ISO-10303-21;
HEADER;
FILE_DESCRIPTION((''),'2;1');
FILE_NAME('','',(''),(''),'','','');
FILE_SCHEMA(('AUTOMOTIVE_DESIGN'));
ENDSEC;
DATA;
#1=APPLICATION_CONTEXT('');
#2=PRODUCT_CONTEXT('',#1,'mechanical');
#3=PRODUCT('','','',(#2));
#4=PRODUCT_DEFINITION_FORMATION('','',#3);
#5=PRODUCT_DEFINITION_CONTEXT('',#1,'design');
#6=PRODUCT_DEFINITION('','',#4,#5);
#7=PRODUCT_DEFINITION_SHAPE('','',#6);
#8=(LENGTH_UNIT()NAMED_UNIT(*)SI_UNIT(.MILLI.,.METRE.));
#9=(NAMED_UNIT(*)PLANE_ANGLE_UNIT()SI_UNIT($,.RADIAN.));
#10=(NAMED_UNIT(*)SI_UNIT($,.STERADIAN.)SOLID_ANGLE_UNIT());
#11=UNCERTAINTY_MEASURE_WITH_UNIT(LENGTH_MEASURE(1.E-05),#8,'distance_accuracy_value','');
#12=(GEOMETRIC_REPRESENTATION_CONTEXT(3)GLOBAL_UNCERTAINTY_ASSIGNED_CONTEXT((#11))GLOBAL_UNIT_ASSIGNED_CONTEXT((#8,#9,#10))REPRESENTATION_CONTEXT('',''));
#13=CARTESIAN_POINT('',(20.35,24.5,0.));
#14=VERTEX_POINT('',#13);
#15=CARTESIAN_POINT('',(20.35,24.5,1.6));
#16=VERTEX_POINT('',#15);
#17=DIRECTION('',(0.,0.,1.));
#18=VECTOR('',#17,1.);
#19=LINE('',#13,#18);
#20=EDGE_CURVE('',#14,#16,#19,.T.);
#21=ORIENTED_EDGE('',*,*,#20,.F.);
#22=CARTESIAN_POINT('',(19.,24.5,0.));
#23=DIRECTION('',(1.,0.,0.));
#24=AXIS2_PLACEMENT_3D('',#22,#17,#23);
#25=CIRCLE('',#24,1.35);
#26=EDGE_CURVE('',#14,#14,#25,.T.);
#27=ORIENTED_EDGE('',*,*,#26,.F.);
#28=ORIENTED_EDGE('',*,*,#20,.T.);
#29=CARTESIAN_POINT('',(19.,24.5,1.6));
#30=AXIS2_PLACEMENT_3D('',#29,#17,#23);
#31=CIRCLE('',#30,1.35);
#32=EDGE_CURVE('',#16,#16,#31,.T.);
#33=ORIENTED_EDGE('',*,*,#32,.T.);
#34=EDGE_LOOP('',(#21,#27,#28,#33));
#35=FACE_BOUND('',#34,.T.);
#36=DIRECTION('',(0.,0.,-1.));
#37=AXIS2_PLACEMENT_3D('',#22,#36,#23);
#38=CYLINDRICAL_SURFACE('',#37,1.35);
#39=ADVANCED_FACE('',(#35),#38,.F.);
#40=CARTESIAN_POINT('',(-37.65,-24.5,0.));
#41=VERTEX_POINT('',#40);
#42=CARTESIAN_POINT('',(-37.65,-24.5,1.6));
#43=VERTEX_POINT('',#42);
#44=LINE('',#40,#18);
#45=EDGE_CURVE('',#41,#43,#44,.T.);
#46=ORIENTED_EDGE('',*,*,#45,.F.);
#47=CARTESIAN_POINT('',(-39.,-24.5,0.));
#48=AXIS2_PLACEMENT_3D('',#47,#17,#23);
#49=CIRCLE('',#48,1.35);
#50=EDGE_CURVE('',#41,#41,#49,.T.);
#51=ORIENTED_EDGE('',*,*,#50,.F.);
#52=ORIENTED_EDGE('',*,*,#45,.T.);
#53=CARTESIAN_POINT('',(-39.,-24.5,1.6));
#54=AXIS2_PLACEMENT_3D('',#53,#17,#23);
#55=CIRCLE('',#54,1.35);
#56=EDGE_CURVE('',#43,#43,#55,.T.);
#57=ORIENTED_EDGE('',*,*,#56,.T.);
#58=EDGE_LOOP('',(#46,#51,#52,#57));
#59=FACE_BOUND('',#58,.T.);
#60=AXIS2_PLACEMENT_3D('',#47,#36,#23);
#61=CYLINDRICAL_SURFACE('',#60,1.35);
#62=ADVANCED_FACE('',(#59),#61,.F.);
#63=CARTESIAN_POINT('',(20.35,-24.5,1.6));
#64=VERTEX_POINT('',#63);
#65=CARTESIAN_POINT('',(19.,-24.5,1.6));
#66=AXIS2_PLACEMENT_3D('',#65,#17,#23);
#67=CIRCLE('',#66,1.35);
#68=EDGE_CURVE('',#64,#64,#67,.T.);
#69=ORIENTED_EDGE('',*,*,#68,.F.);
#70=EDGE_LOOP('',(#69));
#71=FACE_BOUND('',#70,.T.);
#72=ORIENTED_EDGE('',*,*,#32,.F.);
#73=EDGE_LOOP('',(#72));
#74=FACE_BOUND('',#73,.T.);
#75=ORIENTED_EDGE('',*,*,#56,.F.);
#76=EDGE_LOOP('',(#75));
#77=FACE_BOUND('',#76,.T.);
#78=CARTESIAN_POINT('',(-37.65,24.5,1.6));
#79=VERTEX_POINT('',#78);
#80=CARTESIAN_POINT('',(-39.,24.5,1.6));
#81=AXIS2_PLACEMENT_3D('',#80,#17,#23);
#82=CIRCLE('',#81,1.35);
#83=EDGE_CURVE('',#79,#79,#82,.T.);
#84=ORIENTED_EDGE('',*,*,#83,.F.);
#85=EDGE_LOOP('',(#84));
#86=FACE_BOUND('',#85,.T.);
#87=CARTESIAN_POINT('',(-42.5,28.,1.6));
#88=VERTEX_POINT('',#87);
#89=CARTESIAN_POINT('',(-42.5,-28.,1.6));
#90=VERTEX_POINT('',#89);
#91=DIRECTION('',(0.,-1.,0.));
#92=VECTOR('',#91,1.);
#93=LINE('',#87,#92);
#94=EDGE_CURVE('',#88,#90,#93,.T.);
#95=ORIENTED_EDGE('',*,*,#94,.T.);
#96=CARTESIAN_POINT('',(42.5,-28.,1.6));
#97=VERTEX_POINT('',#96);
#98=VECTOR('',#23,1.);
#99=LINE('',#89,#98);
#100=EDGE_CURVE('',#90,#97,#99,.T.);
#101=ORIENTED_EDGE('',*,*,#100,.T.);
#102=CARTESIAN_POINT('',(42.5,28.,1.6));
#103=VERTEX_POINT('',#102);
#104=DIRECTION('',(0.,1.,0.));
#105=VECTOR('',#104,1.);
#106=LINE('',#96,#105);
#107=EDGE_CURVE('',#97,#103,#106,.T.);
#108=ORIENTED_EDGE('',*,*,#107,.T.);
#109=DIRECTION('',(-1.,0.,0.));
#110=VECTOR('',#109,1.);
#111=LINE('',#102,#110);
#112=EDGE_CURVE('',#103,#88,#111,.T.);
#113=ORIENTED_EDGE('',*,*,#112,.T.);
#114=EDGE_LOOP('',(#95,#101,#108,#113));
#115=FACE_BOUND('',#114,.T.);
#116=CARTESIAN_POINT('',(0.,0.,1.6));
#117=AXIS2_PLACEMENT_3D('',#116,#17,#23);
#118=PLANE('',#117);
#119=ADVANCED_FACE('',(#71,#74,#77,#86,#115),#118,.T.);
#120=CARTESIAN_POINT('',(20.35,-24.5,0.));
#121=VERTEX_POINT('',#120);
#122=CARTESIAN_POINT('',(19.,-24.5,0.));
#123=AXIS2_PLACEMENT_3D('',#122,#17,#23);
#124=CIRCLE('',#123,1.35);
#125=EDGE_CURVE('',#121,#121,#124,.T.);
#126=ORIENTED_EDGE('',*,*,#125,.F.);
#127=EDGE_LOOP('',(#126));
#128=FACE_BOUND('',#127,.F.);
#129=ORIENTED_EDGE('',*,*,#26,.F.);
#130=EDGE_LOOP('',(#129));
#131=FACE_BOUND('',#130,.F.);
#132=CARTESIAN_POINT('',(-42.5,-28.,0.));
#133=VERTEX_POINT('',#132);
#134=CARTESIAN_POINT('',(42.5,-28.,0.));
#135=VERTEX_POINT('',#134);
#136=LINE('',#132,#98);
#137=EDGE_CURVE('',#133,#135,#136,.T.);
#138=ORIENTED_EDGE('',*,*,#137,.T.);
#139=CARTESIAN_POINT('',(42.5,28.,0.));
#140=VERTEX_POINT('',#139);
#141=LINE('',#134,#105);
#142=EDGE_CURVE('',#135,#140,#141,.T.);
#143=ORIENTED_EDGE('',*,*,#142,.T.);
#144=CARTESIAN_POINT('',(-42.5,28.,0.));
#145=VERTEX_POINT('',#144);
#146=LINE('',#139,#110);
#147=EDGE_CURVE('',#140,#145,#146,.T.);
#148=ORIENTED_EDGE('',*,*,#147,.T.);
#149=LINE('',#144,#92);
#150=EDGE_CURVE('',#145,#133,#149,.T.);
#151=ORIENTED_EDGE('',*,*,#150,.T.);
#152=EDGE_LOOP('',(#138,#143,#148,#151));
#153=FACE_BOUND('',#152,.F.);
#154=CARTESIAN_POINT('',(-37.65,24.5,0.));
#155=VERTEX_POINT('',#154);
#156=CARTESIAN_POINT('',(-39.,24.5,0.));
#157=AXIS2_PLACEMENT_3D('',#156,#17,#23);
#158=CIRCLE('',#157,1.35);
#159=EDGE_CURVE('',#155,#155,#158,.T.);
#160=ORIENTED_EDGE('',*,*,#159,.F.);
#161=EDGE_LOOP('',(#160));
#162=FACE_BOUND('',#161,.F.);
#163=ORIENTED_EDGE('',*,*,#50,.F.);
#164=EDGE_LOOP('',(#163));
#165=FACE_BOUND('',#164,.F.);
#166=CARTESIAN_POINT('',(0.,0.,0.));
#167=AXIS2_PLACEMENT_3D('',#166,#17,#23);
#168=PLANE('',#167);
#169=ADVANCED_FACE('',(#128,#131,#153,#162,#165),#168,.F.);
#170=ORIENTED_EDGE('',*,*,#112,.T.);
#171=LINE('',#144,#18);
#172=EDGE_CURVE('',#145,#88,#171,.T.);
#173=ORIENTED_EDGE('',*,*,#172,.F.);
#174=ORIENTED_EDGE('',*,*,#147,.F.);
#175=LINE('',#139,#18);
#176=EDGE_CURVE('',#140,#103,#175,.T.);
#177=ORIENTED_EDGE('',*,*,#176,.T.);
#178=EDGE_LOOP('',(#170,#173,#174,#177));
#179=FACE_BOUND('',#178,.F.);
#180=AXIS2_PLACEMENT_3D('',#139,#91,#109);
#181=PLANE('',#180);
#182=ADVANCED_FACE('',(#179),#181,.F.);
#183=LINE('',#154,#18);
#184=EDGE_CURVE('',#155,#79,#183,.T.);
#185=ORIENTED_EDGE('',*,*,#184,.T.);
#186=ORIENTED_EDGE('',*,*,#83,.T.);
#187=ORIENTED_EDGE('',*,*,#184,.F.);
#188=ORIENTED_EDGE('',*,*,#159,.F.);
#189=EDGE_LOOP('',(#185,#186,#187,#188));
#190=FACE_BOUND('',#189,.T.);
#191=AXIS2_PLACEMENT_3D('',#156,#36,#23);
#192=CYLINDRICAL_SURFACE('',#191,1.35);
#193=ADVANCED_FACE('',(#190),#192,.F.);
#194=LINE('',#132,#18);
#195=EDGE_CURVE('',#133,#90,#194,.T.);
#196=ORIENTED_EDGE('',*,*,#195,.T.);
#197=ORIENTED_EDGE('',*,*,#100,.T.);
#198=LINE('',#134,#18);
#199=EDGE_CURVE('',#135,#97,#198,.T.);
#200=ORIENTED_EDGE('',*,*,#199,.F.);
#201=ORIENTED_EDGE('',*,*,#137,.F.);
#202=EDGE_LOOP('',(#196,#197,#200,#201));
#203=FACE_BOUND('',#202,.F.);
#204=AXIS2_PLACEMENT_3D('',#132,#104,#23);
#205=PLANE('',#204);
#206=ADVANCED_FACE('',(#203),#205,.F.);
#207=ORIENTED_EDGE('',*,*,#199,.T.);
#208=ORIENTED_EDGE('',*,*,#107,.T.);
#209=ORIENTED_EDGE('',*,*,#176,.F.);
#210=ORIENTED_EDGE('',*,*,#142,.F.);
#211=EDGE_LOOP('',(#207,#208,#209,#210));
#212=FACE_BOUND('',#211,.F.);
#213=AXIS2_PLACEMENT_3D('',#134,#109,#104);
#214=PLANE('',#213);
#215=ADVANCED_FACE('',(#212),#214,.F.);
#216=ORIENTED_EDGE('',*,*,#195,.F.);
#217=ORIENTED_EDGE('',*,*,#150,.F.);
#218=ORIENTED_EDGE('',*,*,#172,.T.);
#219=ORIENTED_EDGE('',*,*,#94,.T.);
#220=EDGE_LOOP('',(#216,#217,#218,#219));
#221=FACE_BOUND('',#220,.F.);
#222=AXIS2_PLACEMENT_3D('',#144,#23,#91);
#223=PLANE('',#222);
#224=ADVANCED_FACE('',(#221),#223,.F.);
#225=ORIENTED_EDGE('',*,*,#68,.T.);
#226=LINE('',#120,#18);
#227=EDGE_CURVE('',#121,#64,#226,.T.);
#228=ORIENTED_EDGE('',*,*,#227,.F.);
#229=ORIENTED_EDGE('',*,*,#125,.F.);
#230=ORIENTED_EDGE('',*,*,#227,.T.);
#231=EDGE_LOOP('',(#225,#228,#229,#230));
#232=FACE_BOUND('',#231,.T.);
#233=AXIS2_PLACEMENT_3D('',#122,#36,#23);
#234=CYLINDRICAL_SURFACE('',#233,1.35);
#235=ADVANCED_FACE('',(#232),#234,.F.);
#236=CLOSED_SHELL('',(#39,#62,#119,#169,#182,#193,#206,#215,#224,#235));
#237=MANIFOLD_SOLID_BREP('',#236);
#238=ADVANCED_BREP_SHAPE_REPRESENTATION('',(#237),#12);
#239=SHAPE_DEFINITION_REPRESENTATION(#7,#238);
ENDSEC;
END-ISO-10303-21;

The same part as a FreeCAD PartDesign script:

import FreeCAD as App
import Part
import Sketcher
from FreeCAD import Vector
Q = App.Units.Quantity

doc = App.newDocument("Part")
params = doc.addObject("Spreadsheet::Sheet", "Params")
for row, (alias, value) in enumerate([
    ("sketch1_diameter", "2.7 mm"),
    ("sketch1_width", "85 mm"),
    ("sketch1_height", "56 mm"),
    ("pad1_length", "1.6 mm"),
], start=1):
    params.set(f"A{row}", alias)
    params.set(f"B{row}", "=" + value)
    params.setAlias(f"B{row}", alias)

body = doc.addObject("PartDesign::Body", "Body")

sketch1 = body.newObject("Sketcher::SketchObject", "Sketch")
sketch1.AttachmentSupport = (doc.getObject("XY_Plane"), [""])
sketch1.MapMode = "FlatFace"
sketch1.addGeometry(Part.LineSegment(Vector(42.5, -28, 0), Vector(42.5, 28, 0)), False)
sketch1.addGeometry(Part.LineSegment(Vector(42.5, 28, 0), Vector(-42.5, 28, 0)), False)
sketch1.addGeometry(Part.LineSegment(Vector(-42.5, 28, 0), Vector(-42.5, -28, 0)), False)
sketch1.addGeometry(Part.LineSegment(Vector(-42.5, -28, 0), Vector(42.5, -28, 0)), False)
sketch1.addGeometry(Part.Circle(Vector(-39, -24.5, 0), Vector(0, 0, 1), 1.4), False)
sketch1.addGeometry(Part.Circle(Vector(19, -24.5, 0), Vector(0, 0, 1), 1.4), False)
sketch1.addGeometry(Part.Circle(Vector(-39, 24.5, 0), Vector(0, 0, 1), 1.4), False)
sketch1.addGeometry(Part.Circle(Vector(19, 24.5, 0), Vector(0, 0, 1), 1.4), False)
sketch1.addConstraint(Sketcher.Constraint("Coincident", 0, 2, 1, 1))
sketch1.addConstraint(Sketcher.Constraint("Coincident", 1, 2, 2, 1))
sketch1.addConstraint(Sketcher.Constraint("Coincident", 2, 2, 3, 1))
sketch1.addConstraint(Sketcher.Constraint("Coincident", 3, 2, 0, 1))
sketch1.addConstraint(Sketcher.Constraint("Vertical", 0))
sketch1.addConstraint(Sketcher.Constraint("Horizontal", 1))
sketch1.addConstraint(Sketcher.Constraint("Vertical", 2))
sketch1.addConstraint(Sketcher.Constraint("Horizontal", 3))
sketch1.addConstraint(Sketcher.Constraint("Equal", 4, 5))
sketch1.addConstraint(Sketcher.Constraint("Equal", 5, 6))
sketch1.addConstraint(Sketcher.Constraint("Equal", 6, 7))
sketch1.addConstraint(Sketcher.Constraint("Symmetric", 0, 2, 2, 2, -1, 1))
sketch1.addConstraint(Sketcher.Constraint("Symmetric", 4, 3, 6, 3, -1))
sketch1.addConstraint(Sketcher.Constraint("Symmetric", 5, 3, 7, 3, -1))
sketch1.addConstraint(Sketcher.Constraint("Horizontal", 4, 3, 5, 3))
sketch1.addConstraint(Sketcher.Constraint("Diameter", 4, Q("2.7 mm")))
sketch1.addConstraint(Sketcher.Constraint("DistanceX", 1, 2, 1, 1, Q("85 mm")))
sketch1.addConstraint(Sketcher.Constraint("DistanceY", 0, 1, 0, 2, Q("56 mm")))
sketch1.addConstraint(Sketcher.Constraint("DistanceX", 7, 3, 0, 2, Q("23.5 mm")))
sketch1.addConstraint(Sketcher.Constraint("DistanceY", 7, 3, 0, 2, Q("3.5 mm")))
sketch1.addConstraint(Sketcher.Constraint("DistanceX", 1, 2, 6, 3, Q("3.5 mm")))
sketch1.setExpression("Constraints[15]", "Params.sketch1_diameter")
sketch1.setExpression("Constraints[16]", "Params.sketch1_width")
sketch1.setExpression("Constraints[17]", "Params.sketch1_height")
pad1 = body.newObject("PartDesign::Pad", "Pad")
pad1.Profile = sketch1
pad1.setExpression("Length", "Params.pad1_length")

doc.recompute()
